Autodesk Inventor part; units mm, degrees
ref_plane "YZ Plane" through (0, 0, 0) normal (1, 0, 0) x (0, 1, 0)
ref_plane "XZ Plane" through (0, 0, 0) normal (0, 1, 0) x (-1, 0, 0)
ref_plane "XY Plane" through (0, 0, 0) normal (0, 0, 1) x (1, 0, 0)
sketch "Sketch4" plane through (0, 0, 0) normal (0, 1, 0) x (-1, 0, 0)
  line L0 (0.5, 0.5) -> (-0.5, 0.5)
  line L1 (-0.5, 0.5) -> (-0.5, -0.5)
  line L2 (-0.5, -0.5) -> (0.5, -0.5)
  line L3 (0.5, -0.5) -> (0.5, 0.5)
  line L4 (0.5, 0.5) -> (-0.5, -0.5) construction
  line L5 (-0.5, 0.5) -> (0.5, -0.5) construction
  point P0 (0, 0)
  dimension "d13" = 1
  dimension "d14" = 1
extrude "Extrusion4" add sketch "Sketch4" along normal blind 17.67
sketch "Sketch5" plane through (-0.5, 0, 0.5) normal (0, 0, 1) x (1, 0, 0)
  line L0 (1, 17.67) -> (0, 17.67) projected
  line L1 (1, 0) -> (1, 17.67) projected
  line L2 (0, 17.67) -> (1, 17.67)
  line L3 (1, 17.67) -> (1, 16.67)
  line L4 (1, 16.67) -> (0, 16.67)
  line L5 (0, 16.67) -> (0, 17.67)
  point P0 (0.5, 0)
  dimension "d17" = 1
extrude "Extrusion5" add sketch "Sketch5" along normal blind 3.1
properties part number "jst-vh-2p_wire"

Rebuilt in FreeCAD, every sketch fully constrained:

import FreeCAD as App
import Part
import Sketcher

V = App.Vector
Q = App.Units.Quantity


def add_polygon(sketch, points):
    """Adds a closed chain of lines whose ends are joined by coincident constraints."""
    first, n = sketch.GeometryCount, len(points)
    for a, b in zip(points, points[1:] + points[:1]):
        sketch.addGeometry(Part.LineSegment(App.Vector(*a, 0), App.Vector(*b, 0)), False)
    for i in range(n):
        sketch.addConstraint(Sketcher.Constraint("Coincident", first + i, 2, first + (i + 1) % n, 1))

doc = App.newDocument("Part")
body = doc.addObject("PartDesign::Body", "Body")

# Sketch on XZ plane
sketch1 = doc.addObject("Sketcher::SketchObject", "Sketch")
body.addObject(sketch1)
sketch1.AttachmentSupport = (doc.XZ_Plane, [""])
sketch1.MapMode = "FlatFace"
add_polygon(sketch1, [(-0.5, -0.5), (-0.5, 0.5), (0.5, 0.5), (0.5, -0.5)])  # lines 0-3
sketch1.addConstraint([
    Sketcher.Constraint("Vertical", 0),
    Sketcher.Constraint("Horizontal", 1),
    Sketcher.Constraint("Vertical", 2),
    Sketcher.Constraint("Horizontal", 3),
    Sketcher.Constraint("Symmetric", 0, 2, 2, 2, -1, 1),
    Sketcher.Constraint("Equal", 3, 0),
    Sketcher.Constraint("DistanceX", 1, 1, 1, 2, Q("1 mm")),
])
pad1 = doc.addObject("PartDesign::Pad", "Pad")
body.addObject(pad1)
pad1.Profile = sketch1
pad1.Length = 17.67
pad1.Reversed = True

# Sketch on XY plane
sketch2 = doc.addObject("Sketcher::SketchObject", "Sketch001")
body.addObject(sketch2)
sketch2.AttachmentSupport = (doc.XY_Plane, [""])
sketch2.MapMode = "FlatFace"
sketch2.AttachmentOffset = App.Placement(V(0, 0, 0.5), App.Rotation())
add_polygon(sketch2, [(0.5, 16.7), (0.5, 17.7), (-0.5, 17.7), (-0.5, 16.7)])  # lines 0-3
sketch2.addConstraint([
    Sketcher.Constraint("Vertical", 0),
    Sketcher.Constraint("Horizontal", 1),
    Sketcher.Constraint("Vertical", 2),
    Sketcher.Constraint("Horizontal", 3),
    Sketcher.Constraint("Equal", 3, 0),
    Sketcher.Constraint("DistanceX", 1, 2, 1, 1, Q("1 mm")),
    Sketcher.Constraint("DistanceX", -1, 1, 0, 2, Q("0.5 mm")),
    Sketcher.Constraint("DistanceY", -1, 1, 0, 2, Q("17.67 mm")),
])
pad2 = doc.addObject("PartDesign::Pad", "Pad001")
body.addObject(pad2)
pad2.Profile = sketch2
pad2.Length = 3.1

doc.recompute()
